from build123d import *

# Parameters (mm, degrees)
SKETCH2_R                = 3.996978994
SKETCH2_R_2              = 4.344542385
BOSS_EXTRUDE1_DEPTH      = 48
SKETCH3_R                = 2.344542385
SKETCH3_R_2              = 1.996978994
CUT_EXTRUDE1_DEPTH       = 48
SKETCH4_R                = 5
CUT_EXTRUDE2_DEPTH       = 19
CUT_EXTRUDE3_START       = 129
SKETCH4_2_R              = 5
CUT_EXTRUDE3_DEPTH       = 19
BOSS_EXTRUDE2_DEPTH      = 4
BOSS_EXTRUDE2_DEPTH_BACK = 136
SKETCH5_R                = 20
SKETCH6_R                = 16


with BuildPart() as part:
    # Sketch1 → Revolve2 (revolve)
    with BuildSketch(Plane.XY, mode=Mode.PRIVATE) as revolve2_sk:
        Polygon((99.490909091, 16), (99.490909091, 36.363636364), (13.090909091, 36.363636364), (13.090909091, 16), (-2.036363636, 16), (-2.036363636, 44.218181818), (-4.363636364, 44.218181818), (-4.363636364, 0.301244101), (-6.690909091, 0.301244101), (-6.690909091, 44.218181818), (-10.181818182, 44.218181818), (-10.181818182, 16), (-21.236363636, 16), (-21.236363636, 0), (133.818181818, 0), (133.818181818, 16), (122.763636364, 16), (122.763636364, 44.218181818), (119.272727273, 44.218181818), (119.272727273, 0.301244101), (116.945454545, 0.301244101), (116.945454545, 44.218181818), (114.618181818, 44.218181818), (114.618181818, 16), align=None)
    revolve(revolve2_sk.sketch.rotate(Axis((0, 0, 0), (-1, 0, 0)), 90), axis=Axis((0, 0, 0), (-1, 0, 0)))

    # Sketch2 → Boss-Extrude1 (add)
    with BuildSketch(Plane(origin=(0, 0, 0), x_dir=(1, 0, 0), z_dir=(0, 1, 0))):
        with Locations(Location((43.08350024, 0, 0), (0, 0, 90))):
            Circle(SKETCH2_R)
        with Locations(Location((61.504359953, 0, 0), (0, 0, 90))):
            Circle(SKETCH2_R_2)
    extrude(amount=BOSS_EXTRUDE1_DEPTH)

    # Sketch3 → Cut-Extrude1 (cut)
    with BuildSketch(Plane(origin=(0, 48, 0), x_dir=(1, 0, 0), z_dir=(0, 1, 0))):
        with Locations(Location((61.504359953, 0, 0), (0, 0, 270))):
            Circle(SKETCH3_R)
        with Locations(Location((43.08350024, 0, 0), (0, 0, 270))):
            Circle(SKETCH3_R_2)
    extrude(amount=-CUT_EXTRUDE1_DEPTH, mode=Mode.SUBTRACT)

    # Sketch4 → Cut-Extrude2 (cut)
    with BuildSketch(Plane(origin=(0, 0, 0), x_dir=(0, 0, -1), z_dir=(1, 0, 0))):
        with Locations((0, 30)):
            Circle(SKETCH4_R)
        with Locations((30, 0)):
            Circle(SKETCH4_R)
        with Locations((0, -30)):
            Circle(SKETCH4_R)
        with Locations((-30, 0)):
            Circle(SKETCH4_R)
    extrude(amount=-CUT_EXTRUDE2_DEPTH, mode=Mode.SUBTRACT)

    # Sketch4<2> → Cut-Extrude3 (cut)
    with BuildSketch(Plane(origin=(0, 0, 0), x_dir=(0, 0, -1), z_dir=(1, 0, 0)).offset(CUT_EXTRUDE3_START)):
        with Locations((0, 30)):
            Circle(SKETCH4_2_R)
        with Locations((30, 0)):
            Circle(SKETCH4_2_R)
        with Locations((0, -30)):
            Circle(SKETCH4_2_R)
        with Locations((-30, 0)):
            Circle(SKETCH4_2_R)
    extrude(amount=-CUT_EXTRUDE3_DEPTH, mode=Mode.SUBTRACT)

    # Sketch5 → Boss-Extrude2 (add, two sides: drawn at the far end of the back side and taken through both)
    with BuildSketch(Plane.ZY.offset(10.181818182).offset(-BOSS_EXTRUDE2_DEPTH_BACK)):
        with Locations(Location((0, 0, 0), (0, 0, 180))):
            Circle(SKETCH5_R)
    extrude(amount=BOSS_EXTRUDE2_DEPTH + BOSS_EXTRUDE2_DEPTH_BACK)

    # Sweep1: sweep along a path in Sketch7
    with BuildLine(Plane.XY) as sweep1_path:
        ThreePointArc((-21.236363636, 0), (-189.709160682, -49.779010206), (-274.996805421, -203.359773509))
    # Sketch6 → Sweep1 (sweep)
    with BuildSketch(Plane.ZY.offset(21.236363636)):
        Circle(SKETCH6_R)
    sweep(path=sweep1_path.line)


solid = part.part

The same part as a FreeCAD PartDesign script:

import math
import FreeCAD as App
import Part
import Sketcher
Q = App.Units.Quantity


def add_polygon(sketch, points):
    """Adds a closed chain of lines whose ends are joined by coincident constraints."""
    first, n = sketch.GeometryCount, len(points)
    for a, b in zip(points, points[1:] + points[:1]):
        sketch.addGeometry(Part.LineSegment(App.Vector(*a, 0), App.Vector(*b, 0)), False)
    for i in range(n):
        sketch.addConstraint(Sketcher.Constraint("Coincident", first + i, 2, first + (i + 1) % n, 1))

doc = App.newDocument("Part")
body = doc.addObject("PartDesign::Body", "Body")

# Sketch on XY plane
sketch1 = body.newObject("Sketcher::SketchObject", "Sketch")
sketch1.AttachmentSupport = (doc.getObject("XY_Plane"), [""])
sketch1.MapMode = "FlatFace"
add_polygon(sketch1, [(99.5, 16), (99.5, 36.4), (13.1, 36.4), (13.1, 16), (-2, 16), (-2, 44.2), (-4.4, 44.2), (-4.4, 0.3), (-6.7, 0.3), (-6.7, 44.2), (-10.2, 44.2), (-10.2, 16), (-21.2, 16), (-21.2, 0), (133.8, 0), (133.8, 16), (122.8, 16), (122.8, 44.2), (119.3, 44.2), (119.3, 0.3), (116.9, 0.3), (116.9, 44.2), (114.6, 44.2), (114.6, 16)])  # lines 0-23
sketch1.addConstraint([
    Sketcher.Constraint("Vertical", 0),
    Sketcher.Constraint("Horizontal", 1),
    Sketcher.Constraint("Vertical", 2),
    Sketcher.Constraint("Horizontal", 3),
    Sketcher.Constraint("Vertical", 4),
    Sketcher.Constraint("Horizontal", 5),
    Sketcher.Constraint("Vertical", 6),
    Sketcher.Constraint("Horizontal", 7),
    Sketcher.Constraint("Vertical", 8),
    Sketcher.Constraint("Horizontal", 9),
    Sketcher.Constraint("Vertical", 10),
    Sketcher.Constraint("Horizontal", 11),
    Sketcher.Constraint("Vertical", 12),
    Sketcher.Constraint("Horizontal", 13),
    Sketcher.Constraint("Vertical", 14),
    Sketcher.Constraint("Horizontal", 15),
    Sketcher.Constraint("Vertical", 16),
    Sketcher.Constraint("Horizontal", 17),
    Sketcher.Constraint("Vertical", 18),
    Sketcher.Constraint("Horizontal", 19),
    Sketcher.Constraint("Vertical", 20),
    Sketcher.Constraint("Horizontal", 21),
    Sketcher.Constraint("Vertical", 22),
    Sketcher.Constraint("Horizontal", 23),
    Sketcher.Constraint("PointOnObject", 12, 2, -1),
    Sketcher.Constraint("Horizontal", 5, 2, 8, 2),
    Sketcher.Constraint("Horizontal", 3, 2, 10, 2),
    Sketcher.Constraint("Horizontal", 11, 2, 14, 2),
    Sketcher.Constraint("Horizontal", 9, 2, 16, 2),
    Sketcher.Constraint("Horizontal", 7, 2, 18, 2),
    Sketcher.Constraint("Horizontal", 17, 2, 20, 2),
    Sketcher.Constraint("Horizontal", 15, 2, 22, 2),
    Sketcher.Constraint("Equal", 5, 7),
    Sketcher.Constraint("Equal", 11, 15),
    Sketcher.Constraint("Equal", 9, 17),
    Sketcher.Constraint("Equal", 7, 19),
    Sketcher.Constraint("Equal", 19, 21),
    Sketcher.Constraint("Equal", 3, 23),
    Sketcher.Constraint("DistanceY", 12, 2, 12, 1, Q("16 mm")),
    Sketcher.Constraint("DistanceX", 1, 2, 1, 1, Q("86.4 mm")),
    Sketcher.Constraint("DistanceX", 11, 2, 3, 2, Q("19.2 mm")),
    Sketcher.Constraint("DistanceX", 9, 2, 9, 1, Q("3.490909 mm")),
    Sketcher.Constraint("DistanceY", 4, 1, 4, 2, Q("28.218182 mm")),
    Sketcher.Constraint("DistanceX", 3, 2, 3, 1, Q("15.127273 mm")),
    Sketcher.Constraint("DistanceX", 5, 2, 5, 1, Q("2.327273 mm")),
    Sketcher.Constraint("DistanceY", 0, 1, 0, 2, Q("20.363636 mm")),
    Sketcher.Constraint("DistanceY", 6, 2, 6, 1, Q("43.916938 mm")),
    Sketcher.Constraint("DistanceX", -1, 1, 0, 2, Q("99.490909 mm")),
])
revolution = body.newObject("PartDesign::Revolution", "Revolution")
revolution.Profile = sketch1
revolution.ReferenceAxis = (sketch1, ["H_Axis"])
revolution.Angle = 360

# Sketch on XZ plane
sketch2 = body.newObject("Sketcher::SketchObject", "Sketch001")
sketch2.AttachmentSupport = (doc.getObject("XZ_Plane"), [""])
sketch2.MapMode = "FlatFace"
sketch2.addGeometry([
    Part.Circle(App.Vector(43.1, 0, 0), App.Vector(0, 0, 1), 4),
    Part.Circle(App.Vector(61.5, 0, 0), App.Vector(0, 0, 1), 4.3),
], False)
sketch2.addConstraint([
    Sketcher.Constraint("PointOnObject", 0, 3, -1),
    Sketcher.Constraint("PointOnObject", 1, 3, -1),
    Sketcher.Constraint("Diameter", 0, Q("7.993958 mm")),
    Sketcher.Constraint("Diameter", 1, Q("8.689085 mm")),
    Sketcher.Constraint("DistanceX", -1, 1, 0, 3, Q("43.0835 mm")),
    Sketcher.Constraint("DistanceX", -1, 1, 1, 3, Q("61.50436 mm")),
])
pad1 = body.newObject("PartDesign::Pad", "Pad")
pad1.Profile = sketch2
pad1.Length = 48
pad1.Reversed = True

# Sketch on XZ plane
sketch3 = body.newObject("Sketcher::SketchObject", "Sketch002")
sketch3.AttachmentSupport = (doc.getObject("XZ_Plane"), [""])
sketch3.MapMode = "FlatFace"
sketch3.AttachmentOffset = App.Placement(App.Vector(0, 0, -48), App.Rotation())
sketch3.addGeometry([
    Part.Circle(App.Vector(61.5, 0, 0), App.Vector(0, 0, 1), 2.3),
    Part.Circle(App.Vector(43.1, 0, 0), App.Vector(0, 0, 1), 2),
], False)
sketch3.addConstraint([
    Sketcher.Constraint("PointOnObject", 0, 3, -1),
    Sketcher.Constraint("PointOnObject", 1, 3, -1),
    Sketcher.Constraint("Diameter", 0, Q("4.689085 mm")),
    Sketcher.Constraint("Diameter", 1, Q("3.993958 mm")),
    Sketcher.Constraint("DistanceX", -1, 1, 1, 3, Q("43.0835 mm")),
    Sketcher.Constraint("DistanceX", -1, 1, 0, 3, Q("61.50436 mm")),
])
pocket1 = body.newObject("PartDesign::Pocket", "Pocket")
pocket1.Profile = sketch3
pocket1.Length = 48
pocket1.Reversed = True

# Sketch on YZ plane
sketch4 = body.newObject("Sketcher::SketchObject", "Sketch003")
sketch4.AttachmentSupport = (doc.getObject("YZ_Plane"), [""])
sketch4.MapMode = "FlatFace"
sketch4.addGeometry([
    Part.Circle(App.Vector(30, 0, 0), App.Vector(0, 0, 1), 5),
    Part.Circle(App.Vector(0, -30, 0), App.Vector(0, 0, 1), 5),
    Part.Circle(App.Vector(-30, 0, 0), App.Vector(0, 0, 1), 5),
    Part.Circle(App.Vector(0, 30, 0), App.Vector(0, 0, 1), 5),
], False)
sketch4.addConstraint([
    Sketcher.Constraint("Equal", 0, 1),
    Sketcher.Constraint("Equal", 1, 2),
    Sketcher.Constraint("Equal", 2, 3),
    Sketcher.Constraint("Symmetric", 0, 3, 2, 3, -1, 1),
    Sketcher.Constraint("Symmetric", 1, 3, 3, 3, -1, 1),
    Sketcher.Constraint("PointOnObject", 0, 3, -1),
    Sketcher.Constraint("PointOnObject", 1, 3, -2),
    Sketcher.Constraint("Diameter", 0, Q("10 mm")),
    Sketcher.Constraint("DistanceX", -1, 1, 0, 3, Q("30 mm")),
    Sketcher.Constraint("DistanceY", 1, 3, -1, 1, Q("30 mm")),
])
pocket2 = body.newObject("PartDesign::Pocket", "Pocket001")
pocket2.Profile = sketch4
pocket2.Length = 19

# Sketch on YZ plane
sketch5 = body.newObject("Sketcher::SketchObject", "Sketch004")
sketch5.AttachmentSupport = (doc.getObject("YZ_Plane"), [""])
sketch5.MapMode = "FlatFace"
sketch5.AttachmentOffset = App.Placement(App.Vector(0, 0, 129), App.Rotation())
sketch5.addGeometry([
    Part.Circle(App.Vector(30, 0, 0), App.Vector(0, 0, 1), 5),
    Part.Circle(App.Vector(0, -30, 0), App.Vector(0, 0, 1), 5),
    Part.Circle(App.Vector(-30, 0, 0), App.Vector(0, 0, 1), 5),
    Part.Circle(App.Vector(0, 30, 0), App.Vector(0, 0, 1), 5),
], False)
sketch5.addConstraint([
    Sketcher.Constraint("Equal", 0, 1),
    Sketcher.Constraint("Equal", 1, 2),
    Sketcher.Constraint("Equal", 2, 3),
    Sketcher.Constraint("Symmetric", 0, 3, 2, 3, -1, 1),
    Sketcher.Constraint("Symmetric", 1, 3, 3, 3, -1, 1),
    Sketcher.Constraint("PointOnObject", 0, 3, -1),
    Sketcher.Constraint("PointOnObject", 1, 3, -2),
    Sketcher.Constraint("Diameter", 0, Q("10 mm")),
    Sketcher.Constraint("DistanceX", -1, 1, 0, 3, Q("30 mm")),
    Sketcher.Constraint("DistanceY", 1, 3, -1, 1, Q("30 mm")),
])
pocket3 = body.newObject("PartDesign::Pocket", "Pocket002")
pocket3.Profile = sketch5
pocket3.Length = 19

# Sketch on YZ plane
sketch6 = body.newObject("Sketcher::SketchObject", "Sketch005")
sketch6.AttachmentSupport = (doc.getObject("YZ_Plane"), [""])
sketch6.MapMode = "FlatFace"
sketch6.AttachmentOffset = App.Placement(App.Vector(0, 0, -10.181818), App.Rotation())
sketch6.addGeometry(Part.Circle(App.Vector(0, 0, 0), App.Vector(0, 0, 1), 20), False)
sketch6.addConstraint([
    Sketcher.Constraint("Coincident", 0, 3, -1, 1),
    Sketcher.Constraint("Diameter", 0, Q("40 mm")),
])
pad2 = body.newObject("PartDesign::Pad", "Pad001")
pad2.Profile = sketch6
pad2.Type = "TwoLengths"
pad2.Length = 4
pad2.Length2 = 136
pad2.Reversed = True

# Sketch on YZ plane
sketch7 = body.newObject("Sketcher::SketchObject", "Sketch006")
sketch7.AttachmentSupport = (doc.getObject("YZ_Plane"), [""])
sketch7.MapMode = "FlatFace"
sketch7.AttachmentOffset = App.Placement(App.Vector(0, 0, -21.236364), App.Rotation())
sketch7.addGeometry(Part.Circle(App.Vector(0, 0, 0), App.Vector(0, 0, 1), 16), False)
sketch7.addConstraint([
    Sketcher.Constraint("Coincident", 0, 3, -1, 1),
    Sketcher.Constraint("Diameter", 0, Q("32 mm")),
])

# Sketch on XY plane
sketch8 = body.newObject("Sketcher::SketchObject", "Sketch007")
sketch8.AttachmentSupport = (doc.getObject("XY_Plane"), [""])
sketch8.MapMode = "FlatFace"
sketch8.addGeometry(Part.ArcOfCircle(Part.Circle(App.Vector(-45, -231, 0), App.Vector(0, 0, 1), 232), math.radians(84), math.radians(173)), False)
sketch8.addConstraint([
    Sketcher.Constraint("PointOnObject", 0, 1, -1),
    Sketcher.Constraint("Radius", 0, Q("232.001297 mm")),
    Sketcher.Constraint("DistanceX", 0, 2, 0, 3, Q("230.370528 mm")),
    Sketcher.Constraint("DistanceX", 0, 2, 0, 1, Q("253.760442 mm")),
    Sketcher.Constraint("DistanceX", 0, 3, -1, 1, Q("44.626277 mm")),
])
doc.recompute()

additivepipe = body.newObject("PartDesign::AdditivePipe", "AdditivePipe")
additivepipe.Profile = sketch7
additivepipe.Spine = (sketch8, ["Edge1"])

doc.recompute()
